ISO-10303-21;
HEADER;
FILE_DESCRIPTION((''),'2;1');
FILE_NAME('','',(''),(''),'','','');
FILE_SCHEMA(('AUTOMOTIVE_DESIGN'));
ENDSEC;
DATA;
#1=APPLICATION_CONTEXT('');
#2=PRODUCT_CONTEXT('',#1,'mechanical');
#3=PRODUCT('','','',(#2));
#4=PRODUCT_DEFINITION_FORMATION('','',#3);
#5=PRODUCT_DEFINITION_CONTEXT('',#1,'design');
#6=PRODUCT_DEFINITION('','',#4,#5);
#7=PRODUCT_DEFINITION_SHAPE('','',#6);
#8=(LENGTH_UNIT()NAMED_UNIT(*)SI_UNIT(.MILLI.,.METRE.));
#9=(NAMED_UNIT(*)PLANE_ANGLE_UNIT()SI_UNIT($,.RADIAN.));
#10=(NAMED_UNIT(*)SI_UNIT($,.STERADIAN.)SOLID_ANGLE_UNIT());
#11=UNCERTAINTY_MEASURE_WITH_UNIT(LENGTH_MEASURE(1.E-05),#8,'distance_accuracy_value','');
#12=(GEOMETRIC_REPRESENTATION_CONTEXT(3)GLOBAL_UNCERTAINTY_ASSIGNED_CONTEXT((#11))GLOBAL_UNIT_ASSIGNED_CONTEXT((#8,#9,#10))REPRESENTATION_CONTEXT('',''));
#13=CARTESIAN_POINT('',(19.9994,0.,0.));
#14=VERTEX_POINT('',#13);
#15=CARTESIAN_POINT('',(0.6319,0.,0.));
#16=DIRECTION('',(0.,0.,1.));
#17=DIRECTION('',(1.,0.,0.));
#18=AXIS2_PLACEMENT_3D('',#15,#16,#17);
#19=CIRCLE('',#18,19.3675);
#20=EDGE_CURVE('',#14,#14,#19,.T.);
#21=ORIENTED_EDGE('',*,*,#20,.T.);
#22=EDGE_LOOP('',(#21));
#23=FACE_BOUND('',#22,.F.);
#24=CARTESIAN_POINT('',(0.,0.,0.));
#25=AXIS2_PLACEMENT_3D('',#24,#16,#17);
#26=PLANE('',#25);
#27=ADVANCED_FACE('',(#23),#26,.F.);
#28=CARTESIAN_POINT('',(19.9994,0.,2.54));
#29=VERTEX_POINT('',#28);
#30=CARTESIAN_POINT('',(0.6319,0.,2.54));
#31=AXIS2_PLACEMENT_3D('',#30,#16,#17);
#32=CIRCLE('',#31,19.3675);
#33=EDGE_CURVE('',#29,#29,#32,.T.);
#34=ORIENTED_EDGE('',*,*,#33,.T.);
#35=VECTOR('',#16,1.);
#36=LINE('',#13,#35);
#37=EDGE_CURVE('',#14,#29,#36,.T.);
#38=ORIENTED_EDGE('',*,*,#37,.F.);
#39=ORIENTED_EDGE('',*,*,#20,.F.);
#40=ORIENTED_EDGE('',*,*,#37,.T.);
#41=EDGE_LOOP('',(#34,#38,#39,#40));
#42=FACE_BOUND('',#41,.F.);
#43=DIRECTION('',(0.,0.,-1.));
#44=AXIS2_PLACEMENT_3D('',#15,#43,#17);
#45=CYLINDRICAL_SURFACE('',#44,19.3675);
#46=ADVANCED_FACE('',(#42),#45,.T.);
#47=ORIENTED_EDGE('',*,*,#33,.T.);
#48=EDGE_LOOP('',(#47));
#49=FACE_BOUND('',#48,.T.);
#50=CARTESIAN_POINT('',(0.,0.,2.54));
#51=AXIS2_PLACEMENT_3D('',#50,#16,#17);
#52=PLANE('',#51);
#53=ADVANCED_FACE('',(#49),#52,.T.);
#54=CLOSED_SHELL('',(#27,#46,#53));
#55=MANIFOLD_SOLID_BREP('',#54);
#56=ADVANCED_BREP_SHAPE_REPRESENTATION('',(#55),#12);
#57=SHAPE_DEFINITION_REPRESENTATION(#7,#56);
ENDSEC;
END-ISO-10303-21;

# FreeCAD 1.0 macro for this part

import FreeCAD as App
import Part
import Sketcher

V = App.Vector
Q = App.Units.Quantity

doc = App.newDocument("Part")
body = doc.addObject("PartDesign::Body", "Body")

sketch1 = body.newObject("Sketcher::SketchObject", "Sketch")
sketch1.AttachmentSupport = (doc.getObject("XY_Plane"), [""])
sketch1.MapMode = "FlatFace"
sketch1.addGeometry(Part.Circle(V(1, 0, 0), V(0, 0, 1), 19), False)
sketch1.addConstraint([
    Sketcher.Constraint("PointOnObject", 0, 3, -1),
    Sketcher.Constraint("Diameter", 0, Q("1.525 in")),
    Sketcher.Constraint("DistanceX", -1, 1, 0, 3, Q("0.632 mm")),
])
pad1 = body.newObject("PartDesign::Pad", "Pad")
pad1.Profile = sketch1
pad1.Length = Q("0.1 in")

doc.recompute()
